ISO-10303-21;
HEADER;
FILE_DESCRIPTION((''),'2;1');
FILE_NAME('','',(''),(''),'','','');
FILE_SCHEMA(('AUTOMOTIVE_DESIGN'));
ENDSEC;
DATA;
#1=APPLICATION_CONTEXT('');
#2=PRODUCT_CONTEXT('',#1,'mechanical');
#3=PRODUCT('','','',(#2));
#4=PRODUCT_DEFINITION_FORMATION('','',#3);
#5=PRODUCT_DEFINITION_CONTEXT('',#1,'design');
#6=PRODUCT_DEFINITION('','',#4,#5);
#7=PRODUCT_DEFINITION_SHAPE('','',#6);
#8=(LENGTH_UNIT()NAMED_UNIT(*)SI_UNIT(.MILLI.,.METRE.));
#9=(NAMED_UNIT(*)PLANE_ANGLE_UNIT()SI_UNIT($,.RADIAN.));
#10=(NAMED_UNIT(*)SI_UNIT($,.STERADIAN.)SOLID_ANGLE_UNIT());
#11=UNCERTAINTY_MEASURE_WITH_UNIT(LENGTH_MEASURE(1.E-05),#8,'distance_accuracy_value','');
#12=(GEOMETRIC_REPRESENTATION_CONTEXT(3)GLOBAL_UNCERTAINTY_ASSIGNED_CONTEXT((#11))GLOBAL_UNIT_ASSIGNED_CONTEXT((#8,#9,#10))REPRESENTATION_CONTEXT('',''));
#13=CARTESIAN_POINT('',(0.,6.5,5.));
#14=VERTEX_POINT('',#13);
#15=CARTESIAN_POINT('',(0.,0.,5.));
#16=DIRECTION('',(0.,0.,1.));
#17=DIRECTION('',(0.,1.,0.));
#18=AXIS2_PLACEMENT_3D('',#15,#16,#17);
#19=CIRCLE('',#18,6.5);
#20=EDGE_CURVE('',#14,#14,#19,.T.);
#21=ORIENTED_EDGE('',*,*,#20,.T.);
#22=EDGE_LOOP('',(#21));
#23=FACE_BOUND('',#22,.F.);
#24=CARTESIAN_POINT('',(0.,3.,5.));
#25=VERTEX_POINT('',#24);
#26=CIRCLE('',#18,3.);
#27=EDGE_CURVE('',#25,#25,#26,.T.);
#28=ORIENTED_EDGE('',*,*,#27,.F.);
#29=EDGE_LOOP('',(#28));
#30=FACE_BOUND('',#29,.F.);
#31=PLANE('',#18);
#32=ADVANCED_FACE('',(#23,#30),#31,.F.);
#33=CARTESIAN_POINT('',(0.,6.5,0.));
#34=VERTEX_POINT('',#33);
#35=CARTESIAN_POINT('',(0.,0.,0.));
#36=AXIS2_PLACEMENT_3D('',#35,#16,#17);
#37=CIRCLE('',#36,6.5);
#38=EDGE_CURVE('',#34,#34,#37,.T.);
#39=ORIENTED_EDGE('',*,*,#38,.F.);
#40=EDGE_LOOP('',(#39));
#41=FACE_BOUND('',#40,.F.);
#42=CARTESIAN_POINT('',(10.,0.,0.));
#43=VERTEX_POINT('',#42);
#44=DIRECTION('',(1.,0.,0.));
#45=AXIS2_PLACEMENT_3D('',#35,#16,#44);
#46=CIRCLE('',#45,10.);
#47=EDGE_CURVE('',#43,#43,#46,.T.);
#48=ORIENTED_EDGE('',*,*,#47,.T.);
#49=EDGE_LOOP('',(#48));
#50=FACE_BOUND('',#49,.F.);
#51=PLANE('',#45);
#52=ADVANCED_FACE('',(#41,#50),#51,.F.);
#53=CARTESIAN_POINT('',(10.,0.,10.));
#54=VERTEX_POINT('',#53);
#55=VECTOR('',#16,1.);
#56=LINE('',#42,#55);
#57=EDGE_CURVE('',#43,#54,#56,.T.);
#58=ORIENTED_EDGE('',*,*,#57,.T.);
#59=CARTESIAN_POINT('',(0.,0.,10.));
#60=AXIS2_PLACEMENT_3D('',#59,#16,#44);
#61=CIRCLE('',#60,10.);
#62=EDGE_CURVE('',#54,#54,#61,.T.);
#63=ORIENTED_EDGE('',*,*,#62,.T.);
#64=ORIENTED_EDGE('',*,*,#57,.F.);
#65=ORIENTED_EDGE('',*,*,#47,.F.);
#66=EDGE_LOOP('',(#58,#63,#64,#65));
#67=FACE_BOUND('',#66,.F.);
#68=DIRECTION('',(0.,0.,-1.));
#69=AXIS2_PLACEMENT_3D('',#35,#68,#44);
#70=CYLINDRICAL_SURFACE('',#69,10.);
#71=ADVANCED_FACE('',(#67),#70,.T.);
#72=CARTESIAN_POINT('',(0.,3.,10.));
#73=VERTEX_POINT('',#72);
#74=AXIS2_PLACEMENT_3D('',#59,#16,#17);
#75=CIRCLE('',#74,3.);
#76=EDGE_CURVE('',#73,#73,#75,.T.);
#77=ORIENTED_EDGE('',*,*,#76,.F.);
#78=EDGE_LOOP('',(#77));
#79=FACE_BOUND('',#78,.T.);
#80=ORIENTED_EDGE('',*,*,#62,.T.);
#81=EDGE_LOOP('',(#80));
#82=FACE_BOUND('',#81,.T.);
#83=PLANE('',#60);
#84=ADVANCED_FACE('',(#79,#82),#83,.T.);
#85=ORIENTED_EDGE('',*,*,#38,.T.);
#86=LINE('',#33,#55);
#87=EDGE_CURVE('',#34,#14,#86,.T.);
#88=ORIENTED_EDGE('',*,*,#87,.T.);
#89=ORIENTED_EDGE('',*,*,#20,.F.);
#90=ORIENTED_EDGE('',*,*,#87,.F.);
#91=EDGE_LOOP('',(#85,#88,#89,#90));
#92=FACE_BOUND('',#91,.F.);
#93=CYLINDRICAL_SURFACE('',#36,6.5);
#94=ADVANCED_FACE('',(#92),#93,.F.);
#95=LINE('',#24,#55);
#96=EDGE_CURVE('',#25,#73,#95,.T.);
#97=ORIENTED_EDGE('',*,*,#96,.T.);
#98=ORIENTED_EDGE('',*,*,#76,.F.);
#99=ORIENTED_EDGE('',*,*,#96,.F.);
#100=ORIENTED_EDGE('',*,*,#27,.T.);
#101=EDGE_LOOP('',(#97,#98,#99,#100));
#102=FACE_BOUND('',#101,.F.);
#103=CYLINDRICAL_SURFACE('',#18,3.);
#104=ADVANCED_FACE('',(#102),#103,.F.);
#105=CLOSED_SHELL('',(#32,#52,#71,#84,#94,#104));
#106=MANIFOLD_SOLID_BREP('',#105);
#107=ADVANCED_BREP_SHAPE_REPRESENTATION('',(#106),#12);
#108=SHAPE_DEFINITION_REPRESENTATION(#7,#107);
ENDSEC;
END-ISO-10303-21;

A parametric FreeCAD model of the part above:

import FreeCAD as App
import Part
import Sketcher
from FreeCAD import Vector

doc = App.newDocument("Part")
body = doc.addObject("PartDesign::Body", "Body")

sketch1 = body.newObject("Sketcher::SketchObject", "Sketch")
sketch1.AttachmentSupport = (doc.getObject("XY_Plane"), [""])
sketch1.MapMode = "FlatFace"
sketch1.addGeometry(Part.Circle(Vector(0, 0, 0), Vector(0, 0, 1), 10), False)
sketch1.addConstraint([
    Sketcher.Constraint("Coincident", 0, 3, -1, 1),
    Sketcher.Constraint("Diameter", 0, 20.0),
])
pad1 = body.newObject("PartDesign::Pad", "Pad")
pad1.Profile = sketch1
pad1.Length = 10

sketch2 = body.newObject("Sketcher::SketchObject", "Sketch001")
sketch2.AttachmentSupport = (doc.getObject("XY_Plane"), [""])
sketch2.MapMode = "FlatFace"
sketch2.addGeometry(Part.Circle(Vector(0, 0, 0), Vector(0, 0, 1), 3), False)
sketch2.addConstraint([
    Sketcher.Constraint("Coincident", 0, 3, -1, 1),
    Sketcher.Constraint("Diameter", 0, 6.0),
])
doc.recompute()
hole = body.newObject("PartDesign::Hole", "Hole")
hole.Profile = sketch2
hole.ThreadType = "None"
hole.Diameter = 6
hole.DepthType = "ThroughAll"
hole.HoleCutType = "Counterbore"
hole.HoleCutDiameter = 13
hole.HoleCutDepth = 5
hole.Reversed = True

doc.recompute()
